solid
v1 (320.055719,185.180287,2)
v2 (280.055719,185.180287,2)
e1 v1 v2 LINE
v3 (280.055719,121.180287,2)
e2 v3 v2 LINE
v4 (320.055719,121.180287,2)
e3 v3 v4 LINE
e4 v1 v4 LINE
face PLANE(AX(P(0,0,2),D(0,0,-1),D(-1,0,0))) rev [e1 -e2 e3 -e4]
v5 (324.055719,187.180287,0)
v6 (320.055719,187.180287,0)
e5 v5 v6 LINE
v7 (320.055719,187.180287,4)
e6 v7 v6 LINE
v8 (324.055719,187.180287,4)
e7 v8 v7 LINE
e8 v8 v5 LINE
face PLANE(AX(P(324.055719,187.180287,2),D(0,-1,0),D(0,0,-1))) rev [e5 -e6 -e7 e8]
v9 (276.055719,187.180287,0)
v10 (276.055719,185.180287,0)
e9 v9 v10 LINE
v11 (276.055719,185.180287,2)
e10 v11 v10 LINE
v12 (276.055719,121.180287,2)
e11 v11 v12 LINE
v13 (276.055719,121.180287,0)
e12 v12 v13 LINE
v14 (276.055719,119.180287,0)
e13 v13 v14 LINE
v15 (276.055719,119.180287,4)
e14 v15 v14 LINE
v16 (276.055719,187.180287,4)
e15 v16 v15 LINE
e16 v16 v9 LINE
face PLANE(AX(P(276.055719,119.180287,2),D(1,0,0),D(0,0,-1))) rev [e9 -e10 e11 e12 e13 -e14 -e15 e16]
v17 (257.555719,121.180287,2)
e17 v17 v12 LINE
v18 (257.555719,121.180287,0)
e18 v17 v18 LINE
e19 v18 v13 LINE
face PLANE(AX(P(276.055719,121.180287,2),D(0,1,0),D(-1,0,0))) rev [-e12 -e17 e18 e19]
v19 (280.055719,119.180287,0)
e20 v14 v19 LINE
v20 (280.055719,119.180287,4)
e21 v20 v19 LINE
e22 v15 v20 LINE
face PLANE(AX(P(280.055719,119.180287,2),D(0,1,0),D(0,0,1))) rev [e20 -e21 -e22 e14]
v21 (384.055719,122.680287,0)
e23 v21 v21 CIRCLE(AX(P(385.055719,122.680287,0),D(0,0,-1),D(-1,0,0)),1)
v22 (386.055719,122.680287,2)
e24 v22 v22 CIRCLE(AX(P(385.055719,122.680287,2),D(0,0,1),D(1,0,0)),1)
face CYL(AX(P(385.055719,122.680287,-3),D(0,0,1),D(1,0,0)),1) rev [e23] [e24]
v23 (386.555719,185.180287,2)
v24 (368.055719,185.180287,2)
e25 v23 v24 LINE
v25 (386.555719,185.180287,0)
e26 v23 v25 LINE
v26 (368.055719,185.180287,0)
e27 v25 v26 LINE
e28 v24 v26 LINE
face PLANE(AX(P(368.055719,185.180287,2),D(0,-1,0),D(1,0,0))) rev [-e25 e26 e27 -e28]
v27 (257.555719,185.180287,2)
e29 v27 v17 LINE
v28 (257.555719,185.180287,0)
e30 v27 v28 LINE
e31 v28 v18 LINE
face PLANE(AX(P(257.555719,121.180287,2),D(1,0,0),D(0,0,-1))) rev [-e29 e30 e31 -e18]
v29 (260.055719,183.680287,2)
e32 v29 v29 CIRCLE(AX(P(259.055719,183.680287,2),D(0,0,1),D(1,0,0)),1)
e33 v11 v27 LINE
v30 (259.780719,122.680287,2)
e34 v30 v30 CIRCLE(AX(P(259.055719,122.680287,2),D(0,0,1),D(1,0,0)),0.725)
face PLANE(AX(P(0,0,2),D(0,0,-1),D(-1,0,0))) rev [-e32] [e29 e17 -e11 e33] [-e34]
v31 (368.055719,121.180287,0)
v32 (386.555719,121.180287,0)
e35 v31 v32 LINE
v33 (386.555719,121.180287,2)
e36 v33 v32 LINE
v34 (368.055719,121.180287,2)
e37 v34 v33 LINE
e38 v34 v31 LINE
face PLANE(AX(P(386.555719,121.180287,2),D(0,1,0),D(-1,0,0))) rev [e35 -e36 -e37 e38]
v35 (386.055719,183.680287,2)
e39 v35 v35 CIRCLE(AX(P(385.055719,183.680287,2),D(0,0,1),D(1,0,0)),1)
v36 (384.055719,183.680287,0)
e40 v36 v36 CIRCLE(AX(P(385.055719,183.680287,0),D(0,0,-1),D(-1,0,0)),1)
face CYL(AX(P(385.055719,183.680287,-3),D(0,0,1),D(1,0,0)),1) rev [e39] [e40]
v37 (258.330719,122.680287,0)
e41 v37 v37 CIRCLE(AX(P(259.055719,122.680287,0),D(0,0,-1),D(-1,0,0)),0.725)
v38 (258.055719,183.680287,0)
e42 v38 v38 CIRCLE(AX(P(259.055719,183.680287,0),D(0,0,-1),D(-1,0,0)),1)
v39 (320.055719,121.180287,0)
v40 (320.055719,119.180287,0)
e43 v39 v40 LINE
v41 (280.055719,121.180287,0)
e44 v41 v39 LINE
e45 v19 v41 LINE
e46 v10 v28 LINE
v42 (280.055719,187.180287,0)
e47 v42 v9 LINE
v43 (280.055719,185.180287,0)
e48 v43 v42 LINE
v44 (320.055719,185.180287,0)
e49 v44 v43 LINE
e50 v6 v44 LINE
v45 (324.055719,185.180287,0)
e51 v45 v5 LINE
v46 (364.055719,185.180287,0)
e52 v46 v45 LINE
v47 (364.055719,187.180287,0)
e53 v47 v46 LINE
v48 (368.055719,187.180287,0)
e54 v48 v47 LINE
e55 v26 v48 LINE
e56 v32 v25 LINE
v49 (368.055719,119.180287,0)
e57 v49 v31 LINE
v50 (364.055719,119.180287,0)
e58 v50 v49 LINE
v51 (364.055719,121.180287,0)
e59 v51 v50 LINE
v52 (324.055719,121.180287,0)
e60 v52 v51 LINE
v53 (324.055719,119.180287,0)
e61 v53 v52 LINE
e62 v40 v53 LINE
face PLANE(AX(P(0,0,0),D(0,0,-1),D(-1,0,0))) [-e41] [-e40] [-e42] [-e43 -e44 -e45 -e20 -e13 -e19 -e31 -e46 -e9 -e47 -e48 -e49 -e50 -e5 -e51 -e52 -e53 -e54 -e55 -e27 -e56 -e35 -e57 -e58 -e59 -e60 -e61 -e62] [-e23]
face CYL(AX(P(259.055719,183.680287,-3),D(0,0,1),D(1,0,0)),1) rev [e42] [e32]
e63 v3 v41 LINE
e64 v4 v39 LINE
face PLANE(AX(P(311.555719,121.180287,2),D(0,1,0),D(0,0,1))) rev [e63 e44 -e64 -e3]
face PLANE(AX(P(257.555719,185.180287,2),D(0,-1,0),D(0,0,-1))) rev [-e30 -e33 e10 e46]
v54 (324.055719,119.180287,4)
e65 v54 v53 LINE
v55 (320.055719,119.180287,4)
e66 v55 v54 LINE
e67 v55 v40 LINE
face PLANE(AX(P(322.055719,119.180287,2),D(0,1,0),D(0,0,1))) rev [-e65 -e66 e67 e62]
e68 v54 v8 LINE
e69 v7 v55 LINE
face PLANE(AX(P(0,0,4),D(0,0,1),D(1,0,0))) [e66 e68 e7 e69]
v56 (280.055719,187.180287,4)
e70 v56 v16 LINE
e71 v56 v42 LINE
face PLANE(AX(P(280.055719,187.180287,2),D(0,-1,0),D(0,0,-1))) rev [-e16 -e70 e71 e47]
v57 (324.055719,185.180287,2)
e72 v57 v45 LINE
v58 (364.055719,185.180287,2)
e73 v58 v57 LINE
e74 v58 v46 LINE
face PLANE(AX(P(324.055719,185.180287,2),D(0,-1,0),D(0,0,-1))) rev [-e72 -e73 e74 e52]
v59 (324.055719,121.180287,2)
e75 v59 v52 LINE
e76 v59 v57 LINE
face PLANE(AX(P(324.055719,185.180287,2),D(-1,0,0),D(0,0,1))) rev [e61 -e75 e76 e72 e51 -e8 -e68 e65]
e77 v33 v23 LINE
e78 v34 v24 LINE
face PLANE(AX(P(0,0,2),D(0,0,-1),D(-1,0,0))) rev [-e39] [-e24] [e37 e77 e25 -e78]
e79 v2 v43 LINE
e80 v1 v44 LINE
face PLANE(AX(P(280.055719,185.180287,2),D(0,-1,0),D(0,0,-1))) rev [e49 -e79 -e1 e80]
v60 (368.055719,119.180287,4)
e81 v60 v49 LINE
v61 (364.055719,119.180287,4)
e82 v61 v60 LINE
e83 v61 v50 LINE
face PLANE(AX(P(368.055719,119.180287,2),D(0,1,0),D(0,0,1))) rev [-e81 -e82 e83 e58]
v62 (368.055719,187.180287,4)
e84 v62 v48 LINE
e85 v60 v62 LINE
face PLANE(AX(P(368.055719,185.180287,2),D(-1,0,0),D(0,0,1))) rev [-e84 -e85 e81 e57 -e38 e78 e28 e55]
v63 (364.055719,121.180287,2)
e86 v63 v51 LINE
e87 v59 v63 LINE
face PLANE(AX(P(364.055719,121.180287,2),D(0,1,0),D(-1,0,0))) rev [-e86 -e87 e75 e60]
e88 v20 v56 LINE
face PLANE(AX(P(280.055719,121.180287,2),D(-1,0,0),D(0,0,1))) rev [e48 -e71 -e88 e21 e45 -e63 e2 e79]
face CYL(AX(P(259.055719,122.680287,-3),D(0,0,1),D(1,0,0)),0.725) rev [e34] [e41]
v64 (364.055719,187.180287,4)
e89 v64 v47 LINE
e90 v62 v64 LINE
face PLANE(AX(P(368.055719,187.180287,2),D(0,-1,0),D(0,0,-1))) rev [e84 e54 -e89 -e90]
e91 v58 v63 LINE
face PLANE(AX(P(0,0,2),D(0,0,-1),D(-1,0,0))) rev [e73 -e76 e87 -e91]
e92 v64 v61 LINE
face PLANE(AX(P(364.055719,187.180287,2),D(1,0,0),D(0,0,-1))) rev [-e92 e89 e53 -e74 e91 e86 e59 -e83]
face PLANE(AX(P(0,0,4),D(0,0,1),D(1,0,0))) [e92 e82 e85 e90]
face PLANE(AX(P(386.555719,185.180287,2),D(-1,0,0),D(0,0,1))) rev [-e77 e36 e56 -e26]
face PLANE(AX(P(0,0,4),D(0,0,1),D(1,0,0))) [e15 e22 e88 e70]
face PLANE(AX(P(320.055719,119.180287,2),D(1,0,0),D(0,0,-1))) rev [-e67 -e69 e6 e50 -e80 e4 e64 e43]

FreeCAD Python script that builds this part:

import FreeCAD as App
import Part
import Sketcher

V = App.Vector


def add_polygon(sketch, points):
    """Adds a closed chain of lines whose ends are joined by coincident constraints."""
    first, n = sketch.GeometryCount, len(points)
    for a, b in zip(points, points[1:] + points[:1]):
        sketch.addGeometry(Part.LineSegment(App.Vector(*a, 0), App.Vector(*b, 0)), False)
    for i in range(n):
        sketch.addConstraint(Sketcher.Constraint("Coincident", first + i, 2, first + (i + 1) % n, 1))

doc = App.newDocument("Part")
body = doc.addObject("PartDesign::Body", "Body")

# Sketch on XY plane
sketch1 = body.newObject("Sketcher::SketchObject", "Sketch")
sketch1.AttachmentSupport = (doc.getObject("XY_Plane"), [""])
sketch1.MapMode = "FlatFace"
add_polygon(sketch1, [(276.1, 185.2), (257.6, 185.2), (257.6, 121.2), (276.1, 121.2), (276.1, 119.2), (280.1, 119.2), (280.1, 121.2), (320.1, 121.2), (320.1, 119.2), (324.1, 119.2), (324.1, 121.2), (364.1, 121.2), (364.1, 119.2), (368.1, 119.2), (368.1, 121.2), (386.6, 121.2), (386.6, 185.2), (368.1, 185.2), (368.1, 187.2), (364.1, 187.2), (364.1, 185.2), (324.1, 185.2), (324.1, 187.2), (320.1, 187.2), (320.1, 185.2), (280.1, 185.2), (280.1, 187.2), (276.1, 187.2)])  # lines 0-27
sketch1.addConstraint([
    Sketcher.Constraint("Horizontal", 0),
    Sketcher.Constraint("Vertical", 1),
    Sketcher.Constraint("Horizontal", 2),
    Sketcher.Constraint("Vertical", 3),
    Sketcher.Constraint("Horizontal", 4),
    Sketcher.Constraint("Vertical", 5),
    Sketcher.Constraint("Horizontal", 6),
    Sketcher.Constraint("Vertical", 7),
    Sketcher.Constraint("Horizontal", 8),
    Sketcher.Constraint("Vertical", 9),
    Sketcher.Constraint("Horizontal", 10),
    Sketcher.Constraint("Vertical", 11),
    Sketcher.Constraint("Horizontal", 12),
    Sketcher.Constraint("Vertical", 13),
    Sketcher.Constraint("Horizontal", 14),
    Sketcher.Constraint("Vertical", 15),
    Sketcher.Constraint("Horizontal", 16),
    Sketcher.Constraint("Vertical", 17),
    Sketcher.Constraint("Horizontal", 18),
    Sketcher.Constraint("Vertical", 19),
    Sketcher.Constraint("Horizontal", 20),
    Sketcher.Constraint("Vertical", 21),
    Sketcher.Constraint("Horizontal", 22),
    Sketcher.Constraint("Vertical", 23),
    Sketcher.Constraint("Horizontal", 24),
    Sketcher.Constraint("Vertical", 25),
    Sketcher.Constraint("Horizontal", 26),
    Sketcher.Constraint("Vertical", 27),
    Sketcher.Constraint("Horizontal", 2, 2, 5, 2),
    Sketcher.Constraint("Horizontal", 4, 2, 7, 2),
    Sketcher.Constraint("Horizontal", 6, 2, 9, 2),
    Sketcher.Constraint("Horizontal", 8, 2, 11, 2),
    Sketcher.Constraint("Horizontal", 10, 2, 13, 2),
    Sketcher.Constraint("Horizontal", 0, 2, 15, 2),
    Sketcher.Constraint("Horizontal", 16, 2, 19, 2),
    Sketcher.Constraint("Horizontal", 18, 2, 21, 2),
    Sketcher.Constraint("Horizontal", 20, 2, 23, 2),
    Sketcher.Constraint("Horizontal", 22, 2, 25, 2),
    Sketcher.Constraint("Vertical", 13, 2, 16, 2),
    Sketcher.Constraint("Vertical", 11, 2, 18, 2),
    Sketcher.Constraint("Vertical", 9, 2, 20, 2),
    Sketcher.Constraint("Vertical", 7, 2, 22, 2),
    Sketcher.Constraint("Vertical", 5, 2, 24, 2),
    Sketcher.Constraint("Vertical", 3, 2, 26, 2),
    Sketcher.Constraint("Equal", 4, 8),
    Sketcher.Constraint("Equal", 6, 10),
    Sketcher.Constraint("Equal", 8, 12),
    Sketcher.Constraint("Equal", 2, 14),
    Sketcher.Constraint("Equal", 13, 17),
    Sketcher.Constraint("DistanceX", 4, 1, 4, 2, 4.0),
    Sketcher.Constraint("DistanceX", 6, 1, 6, 2, 40.0),
    Sketcher.Constraint("DistanceY", 1, 2, 1, 1, 64.0),
    Sketcher.Constraint("DistanceY", 3, 2, 3, 1, 2.0),
    Sketcher.Constraint("DistanceX", 0, 2, 0, 1, 18.5),
    Sketcher.Constraint("DistanceX", -1, 1, 0, 2, 257.555719),
    Sketcher.Constraint("DistanceY", -1, 1, 0, 2, 185.180287),
])
pad1 = body.newObject("PartDesign::Pad", "Pad")
pad1.Profile = sketch1
pad1.Length = 2

# Sketch on XY plane
sketch2 = body.newObject("Sketcher::SketchObject", "Sketch001")
sketch2.AttachmentSupport = (doc.getObject("XY_Plane"), [""])
sketch2.MapMode = "FlatFace"
sketch2.AttachmentOffset = App.Placement(V(0, 0, 2), App.Rotation())
add_polygon(sketch2, [(364.1, 187.2), (364.1, 119.2), (368.1, 119.2), (368.1, 187.2)])  # lines 0-3
add_polygon(sketch2, [(320.1, 187.2), (320.1, 119.2), (324.1, 119.2), (324.1, 187.2)])  # lines 4-7
add_polygon(sketch2, [(276.1, 187.2), (276.1, 119.2), (280.1, 119.2), (280.1, 187.2)])  # lines 8-11
sketch2.addConstraint([
    Sketcher.Constraint("Vertical", 0),
    Sketcher.Constraint("Horizontal", 1),
    Sketcher.Constraint("Vertical", 2),
    Sketcher.Constraint("Horizontal", 3),
    Sketcher.Constraint("Vertical", 4),
    Sketcher.Constraint("Horizontal", 5),
    Sketcher.Constraint("Vertical", 6),
    Sketcher.Constraint("Horizontal", 7),
    Sketcher.Constraint("Vertical", 8),
    Sketcher.Constraint("Horizontal", 9),
    Sketcher.Constraint("Vertical", 10),
    Sketcher.Constraint("Horizontal", 11),
    Sketcher.Constraint("Horizontal", 1, 2, 4, 2),
    Sketcher.Constraint("Horizontal", 3, 2, 6, 2),
    Sketcher.Constraint("Horizontal", 5, 2, 8, 2),
    Sketcher.Constraint("Horizontal", 7, 2, 10, 2),
    Sketcher.Constraint("Equal", 3, 5),
    Sketcher.Constraint("Equal", 7, 9),
    Sketcher.Constraint("DistanceX", 1, 1, 1, 2, 4.0),
    Sketcher.Constraint("DistanceY", 0, 2, 0, 1, 68.0),
    Sketcher.Constraint("DistanceX", 4, 2, 0, 2, 44.0),
    Sketcher.Constraint("DistanceX", 8, 2, 4, 2, 44.0),
    Sketcher.Constraint("DistanceX", -1, 1, 0, 2, 364.055719),
    Sketcher.Constraint("DistanceY", -1, 1, 0, 2, 119.180287),
])
pad2 = body.newObject("PartDesign::Pad", "Pad001")
pad2.Profile = sketch2
pad2.Length = 2

# Sketch on XY plane
sketch3 = body.newObject("Sketcher::SketchObject", "Sketch002")
sketch3.AttachmentSupport = (doc.getObject("XY_Plane"), [""])
sketch3.MapMode = "FlatFace"
sketch3.AttachmentOffset = App.Placement(V(0, 0, 2), App.Rotation())
sketch3.addGeometry([
    Part.Circle(V(259.1, 183.7, 0), V(0, 0, 1), 1),
    Part.Circle(V(385.1, 183.7, 0), V(0, 0, 1), 1),
    Part.Circle(V(385.1, 122.7, 0), V(0, 0, 1), 1),
    Part.Circle(V(259.1, 122.7, 0), V(0, 0, 1), 0.7),
], False)
sketch3.addConstraint([
    Sketcher.Constraint("Equal", 0, 1),
    Sketcher.Constraint("Equal", 1, 2),
    Sketcher.Constraint("Horizontal", 0, 3, 1, 3),
    Sketcher.Constraint("Horizontal", 2, 3, 3, 3),
    Sketcher.Constraint("Vertical", 1, 3, 2, 3),
    Sketcher.Constraint("Vertical", 0, 3, 3, 3),
    Sketcher.Constraint("Diameter", 0, 2.0),
    Sketcher.Constraint("Diameter", 3, 1.45),
    Sketcher.Constraint("DistanceX", 0, 3, 1, 3, 126.0),
    Sketcher.Constraint("DistanceY", 2, 3, 1, 3, 61.0),
    Sketcher.Constraint("DistanceX", -1, 1, 0, 3, 259.055719),
    Sketcher.Constraint("DistanceY", -1, 1, 0, 3, 183.680287),
])
pocket1 = body.newObject("PartDesign::Pocket", "Pocket")
pocket1.Profile = sketch3
pocket1.Length = 5

doc.recompute()
